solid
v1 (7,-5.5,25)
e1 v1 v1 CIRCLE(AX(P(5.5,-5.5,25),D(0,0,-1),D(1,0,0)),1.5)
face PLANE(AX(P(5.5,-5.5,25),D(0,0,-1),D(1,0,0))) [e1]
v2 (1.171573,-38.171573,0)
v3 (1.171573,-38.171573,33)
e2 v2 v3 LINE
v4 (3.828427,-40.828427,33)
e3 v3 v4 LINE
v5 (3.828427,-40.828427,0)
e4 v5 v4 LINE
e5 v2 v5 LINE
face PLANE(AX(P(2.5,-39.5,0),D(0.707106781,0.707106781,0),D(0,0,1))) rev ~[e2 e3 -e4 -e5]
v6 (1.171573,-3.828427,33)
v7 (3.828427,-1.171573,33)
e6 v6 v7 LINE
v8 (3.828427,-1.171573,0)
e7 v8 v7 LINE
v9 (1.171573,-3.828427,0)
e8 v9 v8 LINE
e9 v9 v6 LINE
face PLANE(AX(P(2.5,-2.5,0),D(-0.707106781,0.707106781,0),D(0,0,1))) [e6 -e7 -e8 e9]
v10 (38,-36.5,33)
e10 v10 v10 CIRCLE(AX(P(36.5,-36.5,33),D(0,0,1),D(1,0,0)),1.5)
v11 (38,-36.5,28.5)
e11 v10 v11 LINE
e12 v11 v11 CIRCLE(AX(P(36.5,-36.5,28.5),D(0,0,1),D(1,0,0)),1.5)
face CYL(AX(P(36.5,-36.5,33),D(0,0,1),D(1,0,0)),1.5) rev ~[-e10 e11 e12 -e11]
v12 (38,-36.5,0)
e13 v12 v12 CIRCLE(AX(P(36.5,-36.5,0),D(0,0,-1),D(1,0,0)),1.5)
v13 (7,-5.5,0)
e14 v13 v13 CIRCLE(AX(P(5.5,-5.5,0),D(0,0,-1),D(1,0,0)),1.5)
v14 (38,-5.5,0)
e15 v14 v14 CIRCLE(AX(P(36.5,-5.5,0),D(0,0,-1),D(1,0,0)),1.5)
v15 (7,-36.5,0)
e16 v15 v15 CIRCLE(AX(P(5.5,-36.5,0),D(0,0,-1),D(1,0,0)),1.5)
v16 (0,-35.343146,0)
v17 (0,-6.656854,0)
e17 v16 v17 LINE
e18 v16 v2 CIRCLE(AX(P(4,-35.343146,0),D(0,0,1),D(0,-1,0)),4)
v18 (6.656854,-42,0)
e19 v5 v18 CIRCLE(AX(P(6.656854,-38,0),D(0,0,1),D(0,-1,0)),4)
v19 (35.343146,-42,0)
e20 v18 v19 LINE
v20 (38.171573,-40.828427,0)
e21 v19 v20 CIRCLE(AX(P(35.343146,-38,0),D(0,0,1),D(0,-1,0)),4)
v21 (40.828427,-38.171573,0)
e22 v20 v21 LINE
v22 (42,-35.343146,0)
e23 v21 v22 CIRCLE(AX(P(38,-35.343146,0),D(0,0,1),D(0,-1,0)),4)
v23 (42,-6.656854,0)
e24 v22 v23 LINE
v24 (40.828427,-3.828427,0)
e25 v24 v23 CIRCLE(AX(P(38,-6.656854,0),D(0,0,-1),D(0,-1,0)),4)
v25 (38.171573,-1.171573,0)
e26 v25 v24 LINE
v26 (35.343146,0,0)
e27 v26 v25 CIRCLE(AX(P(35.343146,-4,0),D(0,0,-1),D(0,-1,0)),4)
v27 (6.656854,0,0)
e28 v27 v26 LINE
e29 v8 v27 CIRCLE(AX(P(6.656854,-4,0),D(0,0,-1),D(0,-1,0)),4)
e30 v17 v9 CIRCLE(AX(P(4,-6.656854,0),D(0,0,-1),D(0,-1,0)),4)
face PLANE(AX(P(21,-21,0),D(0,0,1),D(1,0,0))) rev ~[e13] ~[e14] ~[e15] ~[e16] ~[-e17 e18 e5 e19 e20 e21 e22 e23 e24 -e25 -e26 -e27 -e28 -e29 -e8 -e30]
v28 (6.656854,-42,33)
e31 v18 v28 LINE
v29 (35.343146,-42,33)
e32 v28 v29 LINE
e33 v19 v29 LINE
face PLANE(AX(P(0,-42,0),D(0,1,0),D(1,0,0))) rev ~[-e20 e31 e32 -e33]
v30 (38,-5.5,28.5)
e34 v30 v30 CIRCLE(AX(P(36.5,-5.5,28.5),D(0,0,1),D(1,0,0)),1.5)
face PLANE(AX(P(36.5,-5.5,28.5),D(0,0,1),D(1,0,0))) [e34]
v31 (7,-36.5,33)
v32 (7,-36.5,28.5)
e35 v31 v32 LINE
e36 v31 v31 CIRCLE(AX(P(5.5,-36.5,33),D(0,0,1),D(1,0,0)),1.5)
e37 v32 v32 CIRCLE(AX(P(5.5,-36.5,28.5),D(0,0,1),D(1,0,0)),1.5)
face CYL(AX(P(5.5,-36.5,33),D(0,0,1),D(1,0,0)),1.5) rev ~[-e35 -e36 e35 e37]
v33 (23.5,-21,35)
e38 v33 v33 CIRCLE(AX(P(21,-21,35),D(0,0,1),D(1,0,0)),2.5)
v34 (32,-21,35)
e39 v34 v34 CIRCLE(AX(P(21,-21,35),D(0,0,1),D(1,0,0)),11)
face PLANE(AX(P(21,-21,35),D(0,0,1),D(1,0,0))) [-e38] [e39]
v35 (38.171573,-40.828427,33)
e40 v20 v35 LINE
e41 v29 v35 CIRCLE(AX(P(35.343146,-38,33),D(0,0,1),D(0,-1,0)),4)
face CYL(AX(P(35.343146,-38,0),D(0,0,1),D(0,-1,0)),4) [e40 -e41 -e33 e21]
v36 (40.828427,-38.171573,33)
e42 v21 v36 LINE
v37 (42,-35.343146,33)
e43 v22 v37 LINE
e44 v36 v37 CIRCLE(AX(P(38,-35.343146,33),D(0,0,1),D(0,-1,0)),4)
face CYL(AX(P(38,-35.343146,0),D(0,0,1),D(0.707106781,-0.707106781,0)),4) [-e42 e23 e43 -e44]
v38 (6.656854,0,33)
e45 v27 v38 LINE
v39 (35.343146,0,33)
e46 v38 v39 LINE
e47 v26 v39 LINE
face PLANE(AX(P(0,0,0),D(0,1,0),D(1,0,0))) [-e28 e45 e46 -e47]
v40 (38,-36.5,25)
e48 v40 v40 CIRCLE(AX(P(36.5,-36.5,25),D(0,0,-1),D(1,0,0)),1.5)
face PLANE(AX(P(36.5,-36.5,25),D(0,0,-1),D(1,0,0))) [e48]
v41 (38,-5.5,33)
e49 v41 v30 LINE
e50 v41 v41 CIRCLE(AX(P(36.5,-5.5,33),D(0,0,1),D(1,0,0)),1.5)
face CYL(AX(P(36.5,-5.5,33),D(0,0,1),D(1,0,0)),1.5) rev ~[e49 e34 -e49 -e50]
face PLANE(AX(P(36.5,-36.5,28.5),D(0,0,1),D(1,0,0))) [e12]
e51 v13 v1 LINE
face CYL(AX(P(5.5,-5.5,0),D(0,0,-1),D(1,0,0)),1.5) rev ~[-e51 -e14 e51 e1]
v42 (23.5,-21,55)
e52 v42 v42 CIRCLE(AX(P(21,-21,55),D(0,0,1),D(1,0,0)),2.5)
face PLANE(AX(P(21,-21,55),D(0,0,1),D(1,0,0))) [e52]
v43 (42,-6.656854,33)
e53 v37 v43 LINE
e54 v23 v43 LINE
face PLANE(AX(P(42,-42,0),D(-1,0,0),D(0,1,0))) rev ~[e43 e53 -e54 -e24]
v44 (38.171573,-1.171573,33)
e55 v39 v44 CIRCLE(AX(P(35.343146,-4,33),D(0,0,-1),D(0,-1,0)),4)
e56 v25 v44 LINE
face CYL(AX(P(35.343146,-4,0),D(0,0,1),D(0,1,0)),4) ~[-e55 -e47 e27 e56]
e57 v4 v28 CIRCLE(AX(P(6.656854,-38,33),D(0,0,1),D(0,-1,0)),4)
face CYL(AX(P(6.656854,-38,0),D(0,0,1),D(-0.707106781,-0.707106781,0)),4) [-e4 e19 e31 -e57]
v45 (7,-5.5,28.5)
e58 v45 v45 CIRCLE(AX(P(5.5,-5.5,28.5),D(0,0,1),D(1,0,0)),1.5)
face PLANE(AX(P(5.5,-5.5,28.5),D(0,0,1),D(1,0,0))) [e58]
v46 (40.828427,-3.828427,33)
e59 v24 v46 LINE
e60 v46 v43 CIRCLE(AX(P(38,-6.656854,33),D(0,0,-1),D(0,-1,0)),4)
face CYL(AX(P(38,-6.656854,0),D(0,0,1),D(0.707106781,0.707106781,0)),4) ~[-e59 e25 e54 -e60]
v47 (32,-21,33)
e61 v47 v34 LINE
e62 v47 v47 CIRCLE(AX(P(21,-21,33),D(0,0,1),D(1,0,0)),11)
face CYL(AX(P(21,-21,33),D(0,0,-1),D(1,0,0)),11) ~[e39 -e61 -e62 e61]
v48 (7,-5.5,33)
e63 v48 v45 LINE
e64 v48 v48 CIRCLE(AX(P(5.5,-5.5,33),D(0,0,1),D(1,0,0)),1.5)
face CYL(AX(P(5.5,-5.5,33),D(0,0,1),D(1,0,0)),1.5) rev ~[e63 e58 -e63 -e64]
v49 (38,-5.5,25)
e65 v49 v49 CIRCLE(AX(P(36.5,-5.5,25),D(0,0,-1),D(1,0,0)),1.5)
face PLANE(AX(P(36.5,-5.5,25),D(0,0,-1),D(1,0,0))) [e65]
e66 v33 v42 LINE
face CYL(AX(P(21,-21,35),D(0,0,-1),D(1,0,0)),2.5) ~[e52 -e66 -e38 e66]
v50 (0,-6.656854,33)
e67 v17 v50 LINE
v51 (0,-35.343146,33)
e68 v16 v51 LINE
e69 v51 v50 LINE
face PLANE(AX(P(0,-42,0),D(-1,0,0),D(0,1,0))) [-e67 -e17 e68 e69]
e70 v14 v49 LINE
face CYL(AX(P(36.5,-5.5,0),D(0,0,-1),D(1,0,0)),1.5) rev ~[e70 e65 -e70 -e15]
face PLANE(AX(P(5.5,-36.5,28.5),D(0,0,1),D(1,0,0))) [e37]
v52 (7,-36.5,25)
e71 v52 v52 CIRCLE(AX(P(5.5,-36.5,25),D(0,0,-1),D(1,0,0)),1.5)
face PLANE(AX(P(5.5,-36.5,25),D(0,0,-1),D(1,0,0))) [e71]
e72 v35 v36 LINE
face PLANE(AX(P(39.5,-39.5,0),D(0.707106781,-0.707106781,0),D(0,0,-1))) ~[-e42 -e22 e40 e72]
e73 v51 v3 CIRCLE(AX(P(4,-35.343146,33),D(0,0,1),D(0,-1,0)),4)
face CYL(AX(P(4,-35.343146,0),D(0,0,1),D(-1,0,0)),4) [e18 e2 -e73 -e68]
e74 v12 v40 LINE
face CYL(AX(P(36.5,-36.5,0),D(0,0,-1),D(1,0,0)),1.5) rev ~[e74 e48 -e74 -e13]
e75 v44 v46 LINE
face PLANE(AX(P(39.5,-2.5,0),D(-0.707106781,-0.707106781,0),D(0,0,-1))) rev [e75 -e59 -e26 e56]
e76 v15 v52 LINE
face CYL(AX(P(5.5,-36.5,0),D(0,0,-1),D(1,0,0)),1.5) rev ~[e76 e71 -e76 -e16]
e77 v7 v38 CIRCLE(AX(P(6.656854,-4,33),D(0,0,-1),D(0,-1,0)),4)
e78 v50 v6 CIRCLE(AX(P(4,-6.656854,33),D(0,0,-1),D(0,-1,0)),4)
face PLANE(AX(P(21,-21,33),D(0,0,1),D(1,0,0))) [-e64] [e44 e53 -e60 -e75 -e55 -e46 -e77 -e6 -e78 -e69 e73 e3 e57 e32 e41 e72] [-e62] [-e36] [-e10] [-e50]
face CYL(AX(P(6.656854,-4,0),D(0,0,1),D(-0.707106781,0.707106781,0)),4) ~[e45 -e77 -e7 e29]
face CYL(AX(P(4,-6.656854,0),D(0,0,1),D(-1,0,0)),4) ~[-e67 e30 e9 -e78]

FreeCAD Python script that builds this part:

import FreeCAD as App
import Part
import Sketcher


def edges_at(feature, points):
    """Names of the edges that pass closest to the given points."""
    edges = feature.Shape.Edges
    near = lambda p: min(range(len(edges)), key=lambda i: edges[i].distToShape(Part.Vertex(*p))[0])
    return sorted({f"Edge{near(p) + 1}" for p in points})

doc = App.newDocument("Part")
body = doc.addObject("PartDesign::Body", "Body")

sketch1 = body.newObject("Sketcher::SketchObject", "Sketch")
sketch1.AttachmentSupport = (doc.getObject("XY_Plane"), [""])
sketch1.MapMode = "FlatFace"
sketch1.addGeometry([
    Part.LineSegment(App.Vector(0, 0, 0), App.Vector(0, -42, 0)),
    Part.LineSegment(App.Vector(0, -42, 0), App.Vector(42, -42, 0)),
    Part.LineSegment(App.Vector(42, -42, 0), App.Vector(42, 0, 0)),
    Part.LineSegment(App.Vector(42, 0, 0), App.Vector(0, 0, 0)),
], False)
sketch1.addConstraint([
    Sketcher.Constraint("Coincident", 0, 2, 1, 1),
    Sketcher.Constraint("Coincident", 1, 2, 2, 1),
    Sketcher.Constraint("Coincident", 2, 2, 3, 1),
    Sketcher.Constraint("Coincident", 3, 2, 0, 1),
    Sketcher.Constraint("Vertical", 0),
    Sketcher.Constraint("Horizontal", 1),
    Sketcher.Constraint("Vertical", 2),
    Sketcher.Constraint("Horizontal", 3),
    Sketcher.Constraint("Coincident", 3, 2, -1, 1),
    Sketcher.Constraint("Equal", 3, 0),
    Sketcher.Constraint("DistanceX", 1, 1, 1, 2, 42.0),
])
pad1 = body.newObject("PartDesign::Pad", "Pad")
pad1.Profile = sketch1
pad1.Length = 33

sketch2 = body.newObject("Sketcher::SketchObject", "Sketch001")
sketch2.AttachmentSupport = (doc.getObject("XY_Plane"), [""])
sketch2.MapMode = "FlatFace"
sketch2.AttachmentOffset = App.Placement(App.Vector(0, 0, 33), App.Rotation())
sketch2.addGeometry(Part.Circle(App.Vector(21, -21, 0), App.Vector(0, 0, 1), 11), False)
sketch2.addConstraint([
    Sketcher.Constraint("Diameter", 0, 22.0),
    Sketcher.Constraint("DistanceX", -1, 1, 0, 3, 21.0),
    Sketcher.Constraint("DistanceY", 0, 3, -1, 1, 21.0),
])
pad2 = body.newObject("PartDesign::Pad", "Pad001")
pad2.Profile = sketch2
pad2.Length = 2

sketch3 = body.newObject("Sketcher::SketchObject", "Sketch002")
sketch3.AttachmentSupport = (doc.getObject("XY_Plane"), [""])
sketch3.MapMode = "FlatFace"
sketch3.AttachmentOffset = App.Placement(App.Vector(0, 0, 35), App.Rotation())
sketch3.addGeometry(Part.Circle(App.Vector(21, -21, 0), App.Vector(0, 0, 1), 2.5), False)
sketch3.addConstraint([
    Sketcher.Constraint("Diameter", 0, 5.0),
    Sketcher.Constraint("DistanceX", -1, 1, 0, 3, 21.0),
    Sketcher.Constraint("DistanceY", 0, 3, -1, 1, 21.0),
])
pad3 = body.newObject("PartDesign::Pad", "Pad002")
pad3.Profile = sketch3
pad3.Length = 20

sketch4 = body.newObject("Sketcher::SketchObject", "Sketch003")
sketch4.AttachmentSupport = (doc.getObject("XY_Plane"), [""])
sketch4.MapMode = "FlatFace"
sketch4.AttachmentOffset = App.Placement(App.Vector(0, 0, 33), App.Rotation())
sketch4.addGeometry([
    Part.Circle(App.Vector(5.5, -5.5, 0), App.Vector(0, 0, 1), 1.5),
    Part.Circle(App.Vector(36.5, -5.5, 0), App.Vector(0, 0, 1), 1.5),
    Part.Circle(App.Vector(36.5, -36.5, 0), App.Vector(0, 0, 1), 1.5),
    Part.Circle(App.Vector(5.5, -36.5, 0), App.Vector(0, 0, 1), 1.5),
], False)
sketch4.addConstraint([
    Sketcher.Constraint("Equal", 0, 1),
    Sketcher.Constraint("Equal", 1, 2),
    Sketcher.Constraint("Equal", 2, 3),
    Sketcher.Constraint("Horizontal", 0, 3, 1, 3),
    Sketcher.Constraint("Horizontal", 2, 3, 3, 3),
    Sketcher.Constraint("Vertical", 1, 3, 2, 3),
    Sketcher.Constraint("Vertical", 0, 3, 3, 3),
    Sketcher.Constraint("Diameter", 0, 3.0),
    Sketcher.Constraint("DistanceX", 0, 3, 1, 3, 31.0),
    Sketcher.Constraint("DistanceY", 2, 3, 1, 3, 31.0),
    Sketcher.Constraint("DistanceX", -1, 1, 0, 3, 5.5),
    Sketcher.Constraint("DistanceY", 0, 3, -1, 1, 5.5),
])
pocket1 = body.newObject("PartDesign::Pocket", "Pocket")
pocket1.Profile = sketch4
pocket1.Length = 4.5
doc.recompute()

chamfer = body.newObject("PartDesign::Chamfer", "Chamfer")
chamfer.Base = (pocket1, edges_at(pocket1, [
    (42, 0, 16.5),
    (42, -42, 16.5),
    (0, -42, 16.5),
    (0, 0, 16.5),
]))
chamfer.Size = 5
doc.recompute()

fillet = body.newObject("PartDesign::Fillet", "Fillet")
fillet.Base = (chamfer, edges_at(chamfer, [
    (0, -5, 16.5),
    (5, 0, 16.5),
    (0, -37, 16.5),
    (5, -42, 16.5),
    (37, -42, 16.5),
    (42, -37, 16.5),
    (37, 0, 16.5),
    (42, -5, 16.5),
]))
fillet.Radius = 4

sketch5 = body.newObject("Sketcher::SketchObject", "Sketch004")
sketch5.AttachmentSupport = (doc.getObject("XY_Plane"), [""])
sketch5.MapMode = "FlatFace"
sketch5.addGeometry([
    Part.Circle(App.Vector(36.5, -36.5, 0), App.Vector(0, 0, 1), 1.5),
    Part.Circle(App.Vector(5.5, -36.5, 0), App.Vector(0, 0, 1), 1.5),
    Part.Circle(App.Vector(5.5, -5.5, 0), App.Vector(0, 0, 1), 1.5),
    Part.Circle(App.Vector(36.5, -5.5, 0), App.Vector(0, 0, 1), 1.5),
], False)
sketch5.addConstraint([
    Sketcher.Constraint("Equal", 0, 1),
    Sketcher.Constraint("Equal", 1, 2),
    Sketcher.Constraint("Equal", 2, 3),
    Sketcher.Constraint("Horizontal", 0, 3, 1, 3),
    Sketcher.Constraint("Horizontal", 2, 3, 3, 3),
    Sketcher.Constraint("Vertical", 1, 3, 2, 3),
    Sketcher.Constraint("Vertical", 0, 3, 3, 3),
    Sketcher.Constraint("Diameter", 0, 3.0),
    Sketcher.Constraint("DistanceX", 1, 3, 0, 3, 31.0),
    Sketcher.Constraint("DistanceY", 1, 3, 2, 3, 31.0),
    Sketcher.Constraint("DistanceX", -1, 1, 0, 3, 36.5),
    Sketcher.Constraint("DistanceY", 0, 3, -1, 1, 36.5),
])
pocket2 = body.newObject("PartDesign::Pocket", "Pocket001")
pocket2.Profile = sketch5
pocket2.Length = 25
pocket2.Reversed = True

doc.recompute()
